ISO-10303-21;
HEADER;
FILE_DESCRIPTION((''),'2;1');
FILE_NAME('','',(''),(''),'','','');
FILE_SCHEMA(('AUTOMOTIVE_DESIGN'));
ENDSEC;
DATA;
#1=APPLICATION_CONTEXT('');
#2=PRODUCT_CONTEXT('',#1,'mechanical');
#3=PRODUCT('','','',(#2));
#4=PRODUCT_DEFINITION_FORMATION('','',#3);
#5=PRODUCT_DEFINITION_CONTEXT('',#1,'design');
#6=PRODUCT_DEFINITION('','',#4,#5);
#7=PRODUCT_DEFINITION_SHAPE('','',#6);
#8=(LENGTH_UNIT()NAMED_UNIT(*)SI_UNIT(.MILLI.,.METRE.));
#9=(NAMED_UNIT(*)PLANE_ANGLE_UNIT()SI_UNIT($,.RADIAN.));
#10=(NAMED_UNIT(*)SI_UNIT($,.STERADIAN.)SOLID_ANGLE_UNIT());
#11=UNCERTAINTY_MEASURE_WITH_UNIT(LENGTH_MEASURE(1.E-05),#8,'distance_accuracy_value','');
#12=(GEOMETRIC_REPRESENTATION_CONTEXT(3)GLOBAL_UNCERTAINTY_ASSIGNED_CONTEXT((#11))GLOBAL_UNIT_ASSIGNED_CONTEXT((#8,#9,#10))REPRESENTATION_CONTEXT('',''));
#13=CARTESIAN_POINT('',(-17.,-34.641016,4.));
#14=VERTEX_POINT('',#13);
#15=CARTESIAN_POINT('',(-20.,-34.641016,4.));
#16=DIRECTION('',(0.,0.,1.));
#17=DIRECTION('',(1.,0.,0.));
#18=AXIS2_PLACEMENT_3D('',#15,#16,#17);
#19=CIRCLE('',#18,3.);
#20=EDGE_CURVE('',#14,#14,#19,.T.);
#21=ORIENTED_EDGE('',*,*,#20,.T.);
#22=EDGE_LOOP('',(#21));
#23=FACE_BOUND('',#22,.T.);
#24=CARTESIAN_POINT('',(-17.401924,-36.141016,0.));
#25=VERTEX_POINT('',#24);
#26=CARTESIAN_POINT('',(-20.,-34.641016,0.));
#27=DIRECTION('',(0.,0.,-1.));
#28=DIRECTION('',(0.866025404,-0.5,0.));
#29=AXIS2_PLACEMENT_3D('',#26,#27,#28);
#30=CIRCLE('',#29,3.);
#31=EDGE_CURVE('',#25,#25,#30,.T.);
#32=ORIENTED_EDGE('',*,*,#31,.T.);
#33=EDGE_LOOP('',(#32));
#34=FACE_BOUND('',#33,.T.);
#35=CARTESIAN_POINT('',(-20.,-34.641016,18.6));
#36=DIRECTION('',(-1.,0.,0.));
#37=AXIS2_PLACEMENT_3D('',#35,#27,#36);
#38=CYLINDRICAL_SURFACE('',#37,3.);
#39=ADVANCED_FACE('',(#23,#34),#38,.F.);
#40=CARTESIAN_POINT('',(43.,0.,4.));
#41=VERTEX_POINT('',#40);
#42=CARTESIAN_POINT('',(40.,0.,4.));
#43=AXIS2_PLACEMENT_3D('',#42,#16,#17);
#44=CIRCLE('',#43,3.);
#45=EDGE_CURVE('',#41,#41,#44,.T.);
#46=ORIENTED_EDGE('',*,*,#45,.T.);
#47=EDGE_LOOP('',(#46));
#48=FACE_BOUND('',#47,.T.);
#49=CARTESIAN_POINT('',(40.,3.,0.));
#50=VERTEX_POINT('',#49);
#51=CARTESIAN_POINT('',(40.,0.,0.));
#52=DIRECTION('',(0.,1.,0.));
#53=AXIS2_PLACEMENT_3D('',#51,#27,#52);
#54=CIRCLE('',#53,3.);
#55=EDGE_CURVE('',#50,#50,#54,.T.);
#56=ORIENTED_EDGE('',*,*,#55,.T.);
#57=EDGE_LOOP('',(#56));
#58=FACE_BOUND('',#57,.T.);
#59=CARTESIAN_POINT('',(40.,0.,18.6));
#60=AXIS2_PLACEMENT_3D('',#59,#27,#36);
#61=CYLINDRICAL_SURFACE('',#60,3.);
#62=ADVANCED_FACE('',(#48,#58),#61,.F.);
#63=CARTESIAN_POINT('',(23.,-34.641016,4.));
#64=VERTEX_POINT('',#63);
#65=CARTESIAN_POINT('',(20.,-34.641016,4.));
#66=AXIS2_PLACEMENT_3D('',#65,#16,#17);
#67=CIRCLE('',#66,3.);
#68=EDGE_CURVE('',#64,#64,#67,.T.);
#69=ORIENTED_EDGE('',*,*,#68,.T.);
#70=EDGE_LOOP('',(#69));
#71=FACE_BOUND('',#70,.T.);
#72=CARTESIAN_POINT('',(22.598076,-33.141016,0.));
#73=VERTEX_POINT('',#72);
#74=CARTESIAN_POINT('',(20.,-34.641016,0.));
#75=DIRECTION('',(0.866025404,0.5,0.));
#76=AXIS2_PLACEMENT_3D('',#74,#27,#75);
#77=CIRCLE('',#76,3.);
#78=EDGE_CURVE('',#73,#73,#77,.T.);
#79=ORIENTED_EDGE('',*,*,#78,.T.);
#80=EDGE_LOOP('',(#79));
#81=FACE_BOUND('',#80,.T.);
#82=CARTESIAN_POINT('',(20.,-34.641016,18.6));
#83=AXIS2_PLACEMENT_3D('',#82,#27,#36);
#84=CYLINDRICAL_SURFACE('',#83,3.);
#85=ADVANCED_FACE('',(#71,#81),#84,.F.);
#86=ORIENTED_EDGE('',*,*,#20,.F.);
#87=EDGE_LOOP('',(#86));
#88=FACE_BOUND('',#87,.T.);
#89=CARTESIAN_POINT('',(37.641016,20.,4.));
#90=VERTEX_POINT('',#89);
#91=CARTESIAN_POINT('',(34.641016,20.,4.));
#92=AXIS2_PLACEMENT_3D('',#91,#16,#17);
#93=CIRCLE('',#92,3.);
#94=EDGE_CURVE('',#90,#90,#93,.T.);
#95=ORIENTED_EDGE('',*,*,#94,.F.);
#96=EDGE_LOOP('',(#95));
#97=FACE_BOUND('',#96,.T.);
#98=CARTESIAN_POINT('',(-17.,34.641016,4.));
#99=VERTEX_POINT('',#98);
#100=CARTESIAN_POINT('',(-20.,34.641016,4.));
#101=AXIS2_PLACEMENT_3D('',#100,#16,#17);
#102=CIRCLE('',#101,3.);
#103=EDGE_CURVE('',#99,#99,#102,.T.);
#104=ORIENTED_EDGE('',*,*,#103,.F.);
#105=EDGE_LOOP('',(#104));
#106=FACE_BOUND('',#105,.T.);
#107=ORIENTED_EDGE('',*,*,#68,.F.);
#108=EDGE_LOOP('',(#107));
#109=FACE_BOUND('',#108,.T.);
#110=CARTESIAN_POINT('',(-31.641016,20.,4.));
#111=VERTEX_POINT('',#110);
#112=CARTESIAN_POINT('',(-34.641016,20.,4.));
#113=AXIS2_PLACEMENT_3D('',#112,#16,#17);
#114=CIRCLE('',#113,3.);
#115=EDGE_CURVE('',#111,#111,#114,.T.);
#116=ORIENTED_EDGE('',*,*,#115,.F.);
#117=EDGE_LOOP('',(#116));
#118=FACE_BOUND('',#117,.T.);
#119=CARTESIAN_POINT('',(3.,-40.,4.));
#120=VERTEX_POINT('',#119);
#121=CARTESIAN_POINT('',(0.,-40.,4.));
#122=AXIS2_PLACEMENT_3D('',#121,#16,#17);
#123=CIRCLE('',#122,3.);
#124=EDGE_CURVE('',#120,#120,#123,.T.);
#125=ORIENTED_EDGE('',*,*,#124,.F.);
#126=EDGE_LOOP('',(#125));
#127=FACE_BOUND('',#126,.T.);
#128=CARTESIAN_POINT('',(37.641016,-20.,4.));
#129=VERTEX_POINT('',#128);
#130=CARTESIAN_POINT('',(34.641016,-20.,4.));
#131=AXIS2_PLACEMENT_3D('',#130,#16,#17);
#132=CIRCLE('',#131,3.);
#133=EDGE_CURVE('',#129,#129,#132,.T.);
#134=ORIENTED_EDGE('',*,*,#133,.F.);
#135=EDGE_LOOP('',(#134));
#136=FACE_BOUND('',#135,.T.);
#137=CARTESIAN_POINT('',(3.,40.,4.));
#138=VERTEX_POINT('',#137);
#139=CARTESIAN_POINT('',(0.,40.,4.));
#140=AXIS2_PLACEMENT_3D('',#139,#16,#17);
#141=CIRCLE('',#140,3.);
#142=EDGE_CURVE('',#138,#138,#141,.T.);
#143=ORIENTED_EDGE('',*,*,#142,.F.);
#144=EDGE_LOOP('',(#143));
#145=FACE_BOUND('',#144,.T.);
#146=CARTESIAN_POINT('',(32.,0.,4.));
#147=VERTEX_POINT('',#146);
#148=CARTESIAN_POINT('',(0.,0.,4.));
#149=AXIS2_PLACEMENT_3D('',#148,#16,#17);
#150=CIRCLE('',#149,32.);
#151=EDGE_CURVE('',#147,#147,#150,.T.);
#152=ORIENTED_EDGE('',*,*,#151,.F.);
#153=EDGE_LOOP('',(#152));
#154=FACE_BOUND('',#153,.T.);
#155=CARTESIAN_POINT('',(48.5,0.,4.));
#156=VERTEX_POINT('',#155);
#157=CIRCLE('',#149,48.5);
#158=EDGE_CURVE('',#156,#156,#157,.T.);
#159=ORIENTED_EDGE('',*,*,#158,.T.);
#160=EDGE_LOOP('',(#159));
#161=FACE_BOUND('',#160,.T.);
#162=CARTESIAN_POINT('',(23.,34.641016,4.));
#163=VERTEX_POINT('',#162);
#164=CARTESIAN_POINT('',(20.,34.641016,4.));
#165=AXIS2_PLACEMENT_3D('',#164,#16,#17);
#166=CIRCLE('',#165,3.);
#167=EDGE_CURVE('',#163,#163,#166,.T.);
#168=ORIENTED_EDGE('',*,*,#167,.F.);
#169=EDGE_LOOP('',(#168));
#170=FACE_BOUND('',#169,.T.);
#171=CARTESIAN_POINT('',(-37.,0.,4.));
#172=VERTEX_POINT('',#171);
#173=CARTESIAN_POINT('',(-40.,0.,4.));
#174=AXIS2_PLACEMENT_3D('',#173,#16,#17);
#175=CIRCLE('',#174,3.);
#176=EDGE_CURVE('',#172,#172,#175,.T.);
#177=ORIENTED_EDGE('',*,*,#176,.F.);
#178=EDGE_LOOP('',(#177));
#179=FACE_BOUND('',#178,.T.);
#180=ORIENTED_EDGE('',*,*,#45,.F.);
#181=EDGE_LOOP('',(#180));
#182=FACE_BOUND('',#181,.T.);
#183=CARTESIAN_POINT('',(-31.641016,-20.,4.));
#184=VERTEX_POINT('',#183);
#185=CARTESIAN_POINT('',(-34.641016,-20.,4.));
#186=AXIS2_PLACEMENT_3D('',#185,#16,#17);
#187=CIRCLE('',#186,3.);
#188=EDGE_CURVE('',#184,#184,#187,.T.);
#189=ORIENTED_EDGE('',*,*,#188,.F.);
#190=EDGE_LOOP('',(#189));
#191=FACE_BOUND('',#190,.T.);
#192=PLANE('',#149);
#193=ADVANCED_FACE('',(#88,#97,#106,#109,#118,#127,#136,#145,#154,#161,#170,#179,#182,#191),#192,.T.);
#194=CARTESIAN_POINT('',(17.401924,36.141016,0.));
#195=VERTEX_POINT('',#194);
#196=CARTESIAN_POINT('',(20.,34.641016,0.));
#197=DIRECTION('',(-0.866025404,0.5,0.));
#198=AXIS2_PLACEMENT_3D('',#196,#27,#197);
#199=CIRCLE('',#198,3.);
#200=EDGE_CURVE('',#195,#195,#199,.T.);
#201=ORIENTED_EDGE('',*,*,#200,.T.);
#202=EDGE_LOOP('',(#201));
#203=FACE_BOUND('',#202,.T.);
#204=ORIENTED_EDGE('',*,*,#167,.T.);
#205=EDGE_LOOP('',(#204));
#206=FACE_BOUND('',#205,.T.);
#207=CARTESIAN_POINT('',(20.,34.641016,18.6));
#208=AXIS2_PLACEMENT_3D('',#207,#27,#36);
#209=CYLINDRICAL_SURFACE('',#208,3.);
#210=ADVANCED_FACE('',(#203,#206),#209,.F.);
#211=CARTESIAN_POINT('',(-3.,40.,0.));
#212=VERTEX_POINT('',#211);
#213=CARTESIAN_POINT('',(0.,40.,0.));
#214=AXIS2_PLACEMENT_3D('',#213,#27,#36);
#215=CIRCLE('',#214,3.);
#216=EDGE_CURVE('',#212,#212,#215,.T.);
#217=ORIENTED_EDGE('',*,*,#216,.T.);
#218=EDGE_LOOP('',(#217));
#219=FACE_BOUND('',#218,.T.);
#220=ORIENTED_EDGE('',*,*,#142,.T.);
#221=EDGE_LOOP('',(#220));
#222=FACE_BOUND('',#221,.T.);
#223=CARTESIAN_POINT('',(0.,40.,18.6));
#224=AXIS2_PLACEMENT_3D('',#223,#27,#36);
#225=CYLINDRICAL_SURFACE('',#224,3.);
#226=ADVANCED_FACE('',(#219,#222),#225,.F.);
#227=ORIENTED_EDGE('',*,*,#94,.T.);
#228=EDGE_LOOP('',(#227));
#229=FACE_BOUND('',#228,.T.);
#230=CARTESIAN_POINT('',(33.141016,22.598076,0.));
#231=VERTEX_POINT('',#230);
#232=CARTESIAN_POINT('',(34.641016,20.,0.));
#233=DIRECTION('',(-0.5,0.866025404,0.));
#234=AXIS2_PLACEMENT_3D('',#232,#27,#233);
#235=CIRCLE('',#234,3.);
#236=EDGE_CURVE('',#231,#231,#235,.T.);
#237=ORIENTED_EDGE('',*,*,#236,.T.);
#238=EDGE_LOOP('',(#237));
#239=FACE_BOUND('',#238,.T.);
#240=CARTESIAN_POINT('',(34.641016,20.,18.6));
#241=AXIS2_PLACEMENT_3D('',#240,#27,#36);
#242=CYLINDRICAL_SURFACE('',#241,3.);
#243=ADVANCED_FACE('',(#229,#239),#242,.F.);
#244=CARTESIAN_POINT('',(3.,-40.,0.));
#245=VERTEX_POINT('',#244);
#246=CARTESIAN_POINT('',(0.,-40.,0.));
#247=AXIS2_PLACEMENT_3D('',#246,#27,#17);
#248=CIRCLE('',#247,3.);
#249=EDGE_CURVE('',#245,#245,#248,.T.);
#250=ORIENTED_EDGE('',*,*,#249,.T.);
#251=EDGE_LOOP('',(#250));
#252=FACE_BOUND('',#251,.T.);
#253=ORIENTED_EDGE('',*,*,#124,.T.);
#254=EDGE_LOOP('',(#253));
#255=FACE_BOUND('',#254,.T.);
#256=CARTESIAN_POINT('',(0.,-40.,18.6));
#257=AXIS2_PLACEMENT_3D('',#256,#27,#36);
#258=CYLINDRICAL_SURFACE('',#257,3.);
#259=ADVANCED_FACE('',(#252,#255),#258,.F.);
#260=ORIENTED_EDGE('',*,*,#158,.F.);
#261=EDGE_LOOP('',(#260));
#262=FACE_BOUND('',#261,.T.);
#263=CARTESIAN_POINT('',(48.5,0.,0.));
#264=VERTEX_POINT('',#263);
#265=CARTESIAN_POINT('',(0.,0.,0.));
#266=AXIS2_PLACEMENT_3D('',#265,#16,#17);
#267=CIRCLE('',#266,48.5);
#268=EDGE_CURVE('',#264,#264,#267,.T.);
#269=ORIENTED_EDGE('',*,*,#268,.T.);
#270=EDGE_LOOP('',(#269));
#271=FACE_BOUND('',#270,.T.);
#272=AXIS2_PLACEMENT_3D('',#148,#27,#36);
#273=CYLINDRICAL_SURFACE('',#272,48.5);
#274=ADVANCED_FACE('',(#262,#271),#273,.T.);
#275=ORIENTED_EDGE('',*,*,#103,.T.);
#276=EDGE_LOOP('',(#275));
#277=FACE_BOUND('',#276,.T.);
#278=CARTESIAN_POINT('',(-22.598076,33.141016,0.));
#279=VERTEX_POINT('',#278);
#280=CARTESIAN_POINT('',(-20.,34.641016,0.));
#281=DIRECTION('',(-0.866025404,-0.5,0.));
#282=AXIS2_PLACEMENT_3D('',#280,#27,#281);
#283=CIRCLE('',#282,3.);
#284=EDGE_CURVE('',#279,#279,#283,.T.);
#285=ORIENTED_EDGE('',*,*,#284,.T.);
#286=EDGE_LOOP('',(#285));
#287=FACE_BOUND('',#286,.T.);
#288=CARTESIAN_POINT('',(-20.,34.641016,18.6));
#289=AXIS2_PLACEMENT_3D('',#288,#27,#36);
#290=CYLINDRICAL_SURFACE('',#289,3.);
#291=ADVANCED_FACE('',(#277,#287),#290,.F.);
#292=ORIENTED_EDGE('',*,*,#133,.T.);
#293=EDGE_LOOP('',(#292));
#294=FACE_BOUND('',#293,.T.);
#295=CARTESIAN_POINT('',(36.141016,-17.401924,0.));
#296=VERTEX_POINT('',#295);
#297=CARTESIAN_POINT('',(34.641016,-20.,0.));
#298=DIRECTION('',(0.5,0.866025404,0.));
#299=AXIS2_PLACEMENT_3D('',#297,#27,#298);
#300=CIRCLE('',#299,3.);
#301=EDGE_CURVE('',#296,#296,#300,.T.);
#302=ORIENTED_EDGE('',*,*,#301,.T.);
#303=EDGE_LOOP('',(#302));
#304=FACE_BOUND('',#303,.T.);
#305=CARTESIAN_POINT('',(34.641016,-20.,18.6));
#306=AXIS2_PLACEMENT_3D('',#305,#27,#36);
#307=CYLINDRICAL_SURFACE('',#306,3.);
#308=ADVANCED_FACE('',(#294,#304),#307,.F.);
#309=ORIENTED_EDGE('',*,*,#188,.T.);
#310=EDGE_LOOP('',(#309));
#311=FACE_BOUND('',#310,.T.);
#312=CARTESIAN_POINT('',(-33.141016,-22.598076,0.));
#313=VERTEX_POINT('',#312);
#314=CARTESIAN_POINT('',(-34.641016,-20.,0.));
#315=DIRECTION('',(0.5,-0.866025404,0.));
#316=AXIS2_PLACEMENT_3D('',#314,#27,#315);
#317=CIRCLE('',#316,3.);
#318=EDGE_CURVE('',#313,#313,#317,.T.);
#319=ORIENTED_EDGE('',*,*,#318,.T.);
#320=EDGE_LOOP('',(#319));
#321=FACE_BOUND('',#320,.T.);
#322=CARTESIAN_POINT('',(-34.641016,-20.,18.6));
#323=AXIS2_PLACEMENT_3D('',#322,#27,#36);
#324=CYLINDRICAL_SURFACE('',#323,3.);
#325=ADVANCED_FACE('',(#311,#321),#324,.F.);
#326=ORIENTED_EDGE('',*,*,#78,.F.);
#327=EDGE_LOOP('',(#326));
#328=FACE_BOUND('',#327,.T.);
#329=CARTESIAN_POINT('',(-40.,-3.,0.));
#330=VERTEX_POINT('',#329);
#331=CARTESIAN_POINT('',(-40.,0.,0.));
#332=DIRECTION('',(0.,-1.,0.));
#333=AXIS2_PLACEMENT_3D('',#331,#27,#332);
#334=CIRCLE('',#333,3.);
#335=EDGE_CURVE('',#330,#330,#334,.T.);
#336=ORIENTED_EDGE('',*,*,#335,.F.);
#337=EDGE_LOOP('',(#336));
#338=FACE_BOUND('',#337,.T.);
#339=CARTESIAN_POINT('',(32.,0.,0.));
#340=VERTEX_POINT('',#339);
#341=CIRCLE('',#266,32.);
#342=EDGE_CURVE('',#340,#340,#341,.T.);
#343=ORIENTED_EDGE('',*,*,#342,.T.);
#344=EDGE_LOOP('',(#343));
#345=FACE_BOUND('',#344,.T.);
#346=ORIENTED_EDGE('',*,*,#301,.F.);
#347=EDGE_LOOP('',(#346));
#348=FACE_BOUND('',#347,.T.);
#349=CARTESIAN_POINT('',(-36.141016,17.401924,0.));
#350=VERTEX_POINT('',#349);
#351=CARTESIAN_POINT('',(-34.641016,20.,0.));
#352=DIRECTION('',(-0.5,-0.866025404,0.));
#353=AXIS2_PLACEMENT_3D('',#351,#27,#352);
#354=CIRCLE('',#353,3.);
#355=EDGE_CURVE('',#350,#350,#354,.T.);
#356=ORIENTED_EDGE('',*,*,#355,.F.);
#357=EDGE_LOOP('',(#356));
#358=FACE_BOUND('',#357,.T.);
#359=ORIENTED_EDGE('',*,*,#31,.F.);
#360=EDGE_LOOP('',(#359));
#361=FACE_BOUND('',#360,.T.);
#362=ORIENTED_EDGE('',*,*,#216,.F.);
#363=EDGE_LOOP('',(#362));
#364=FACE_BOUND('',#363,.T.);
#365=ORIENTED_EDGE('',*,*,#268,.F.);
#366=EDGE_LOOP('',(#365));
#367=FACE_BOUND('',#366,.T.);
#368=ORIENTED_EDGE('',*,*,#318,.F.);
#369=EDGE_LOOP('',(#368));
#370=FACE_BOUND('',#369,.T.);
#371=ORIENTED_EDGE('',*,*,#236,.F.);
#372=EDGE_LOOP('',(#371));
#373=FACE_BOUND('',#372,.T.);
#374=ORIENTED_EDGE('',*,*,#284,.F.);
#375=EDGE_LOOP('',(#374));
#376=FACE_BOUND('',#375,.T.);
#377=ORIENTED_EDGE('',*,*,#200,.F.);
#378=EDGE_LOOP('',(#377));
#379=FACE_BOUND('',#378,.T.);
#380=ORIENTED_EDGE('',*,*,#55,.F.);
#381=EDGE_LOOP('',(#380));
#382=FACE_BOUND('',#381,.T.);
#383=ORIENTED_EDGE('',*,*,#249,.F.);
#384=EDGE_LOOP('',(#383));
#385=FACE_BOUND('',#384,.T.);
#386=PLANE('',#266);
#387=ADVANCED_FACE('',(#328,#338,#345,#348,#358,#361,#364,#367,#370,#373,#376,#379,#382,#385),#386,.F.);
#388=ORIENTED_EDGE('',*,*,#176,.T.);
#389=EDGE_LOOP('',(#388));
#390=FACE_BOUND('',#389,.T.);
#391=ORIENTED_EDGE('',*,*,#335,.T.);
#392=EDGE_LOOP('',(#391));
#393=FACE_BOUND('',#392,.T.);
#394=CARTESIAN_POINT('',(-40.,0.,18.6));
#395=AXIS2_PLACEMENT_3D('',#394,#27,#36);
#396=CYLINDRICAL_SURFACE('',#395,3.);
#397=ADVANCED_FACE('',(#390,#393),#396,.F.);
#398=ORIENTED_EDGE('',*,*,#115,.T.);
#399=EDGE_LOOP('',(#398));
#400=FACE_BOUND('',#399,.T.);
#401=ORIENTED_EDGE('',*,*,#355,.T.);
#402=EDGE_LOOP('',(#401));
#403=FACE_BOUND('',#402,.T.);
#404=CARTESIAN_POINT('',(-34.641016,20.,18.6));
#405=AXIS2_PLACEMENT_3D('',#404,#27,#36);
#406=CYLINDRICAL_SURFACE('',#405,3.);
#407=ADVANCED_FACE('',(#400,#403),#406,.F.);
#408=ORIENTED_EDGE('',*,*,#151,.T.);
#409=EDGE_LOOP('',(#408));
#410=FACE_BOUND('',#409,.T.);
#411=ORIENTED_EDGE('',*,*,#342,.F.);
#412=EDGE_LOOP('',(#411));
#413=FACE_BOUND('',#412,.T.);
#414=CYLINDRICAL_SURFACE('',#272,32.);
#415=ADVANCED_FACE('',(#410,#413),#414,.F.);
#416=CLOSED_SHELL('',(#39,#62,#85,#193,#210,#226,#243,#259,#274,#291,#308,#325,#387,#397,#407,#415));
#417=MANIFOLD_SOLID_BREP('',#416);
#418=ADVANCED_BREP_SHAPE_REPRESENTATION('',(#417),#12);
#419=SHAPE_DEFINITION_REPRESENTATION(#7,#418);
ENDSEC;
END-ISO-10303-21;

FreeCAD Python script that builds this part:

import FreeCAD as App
import Part
import Sketcher
from FreeCAD import Vector
Q = App.Units.Quantity

doc = App.newDocument("Part")
params = doc.addObject("Spreadsheet::Sheet", "Params")
for row, (alias, value) in enumerate([
    ("sketch1_diameter", "97 mm"),
    ("sketch1_diameter2", "64 mm"),
    ("pad1_length", "4 mm"),
    ("sketch2_diameter", "6 mm"),
    ("pocket1_length", "18.6 mm"),
], start=1):
    params.set(f"A{row}", alias)
    params.set(f"B{row}", "=" + value)
    params.setAlias(f"B{row}", alias)

body = doc.addObject("PartDesign::Body", "Body")

sketch1 = body.newObject("Sketcher::SketchObject", "Sketch")
sketch1.AttachmentSupport = (doc.getObject("XY_Plane"), [""])
sketch1.MapMode = "FlatFace"
sketch1.addGeometry([
    Part.Circle(Vector(0, 0, 0), Vector(0, 0, 1), 48.5),
    Part.Circle(Vector(0, 0, 0), Vector(0, 0, 1), 32),
], False)
sketch1.addConstraint([
    Sketcher.Constraint("Coincident", 0, 3, -1, 1),
    Sketcher.Constraint("Coincident", 1, 3, -1, 1),
    Sketcher.Constraint("Diameter", 0, Q("97 mm")),
    Sketcher.Constraint("Diameter", 1, Q("64 mm")),
])
sketch1.setExpression("Constraints[2]", "Params.sketch1_diameter")
sketch1.setExpression("Constraints[3]", "Params.sketch1_diameter2")
pad1 = body.newObject("PartDesign::Pad", "Pad")
pad1.Profile = sketch1
pad1.setExpression("Length", "Params.pad1_length")

sketch2 = body.newObject("Sketcher::SketchObject", "Sketch001")
sketch2.AttachmentSupport = (doc.getObject("XY_Plane"), [""])
sketch2.MapMode = "FlatFace"
sketch2.addGeometry(Part.Circle(Vector(0, 40, 0), Vector(0, 0, 1), 3), False)
sketch2.addConstraint([
    Sketcher.Constraint("PointOnObject", 0, 3, -2),
    Sketcher.Constraint("Diameter", 0, Q("6 mm")),
    Sketcher.Constraint("DistanceY", -1, 1, 0, 3, Q("40 mm")),
])
sketch2.setExpression("Constraints[1]", "Params.sketch2_diameter")
pocket1 = body.newObject("PartDesign::Pocket", "Pocket")
pocket1.Profile = sketch2
pocket1.setExpression("Length", "Params.pocket1_length")
pocket1.Reversed = True
doc.recompute()

polarpattern = body.newObject("PartDesign::PolarPattern", "PolarPattern")
polarpattern.Originals = [pocket1]
polarpattern.Axis = (doc.getObject("Z_Axis"), [""])
polarpattern.Angle = 360
polarpattern.Occurrences = 12
body.Tip = polarpattern

doc.recompute()
